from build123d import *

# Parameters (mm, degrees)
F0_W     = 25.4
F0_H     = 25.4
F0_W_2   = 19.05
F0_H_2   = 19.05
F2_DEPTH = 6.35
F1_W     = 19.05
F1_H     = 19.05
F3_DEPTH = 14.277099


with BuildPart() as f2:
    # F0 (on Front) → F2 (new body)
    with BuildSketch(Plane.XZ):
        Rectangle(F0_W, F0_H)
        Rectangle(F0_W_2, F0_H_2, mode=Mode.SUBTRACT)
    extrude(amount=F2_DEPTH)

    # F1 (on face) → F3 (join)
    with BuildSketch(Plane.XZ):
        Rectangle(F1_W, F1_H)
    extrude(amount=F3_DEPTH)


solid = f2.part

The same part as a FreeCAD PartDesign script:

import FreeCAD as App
import Part
import Sketcher
from FreeCAD import Vector
Q = App.Units.Quantity

doc = App.newDocument("Part")
body = doc.addObject("PartDesign::Body", "Body")

# Sketch on XZ plane
sketch1 = body.newObject("Sketcher::SketchObject", "Sketch")
sketch1.AttachmentSupport = (doc.getObject("XZ_Plane"), [""])
sketch1.MapMode = "FlatFace"
sketch1.addGeometry([
    Part.LineSegment(Vector(-13, 13, 0), Vector(-13, -13, 0)),  # 0
    Part.LineSegment(Vector(-13, -13, 0), Vector(13, -13, 0)),  # 1
    Part.LineSegment(Vector(13, -13, 0), Vector(13, 13, 0)),  # 2
    Part.LineSegment(Vector(13, 13, 0), Vector(-13, 13, 0)),  # 3
    Part.LineSegment(Vector(10, -10, 0), Vector(-10, -10, 0)),  # 4
    Part.LineSegment(Vector(-10, -10, 0), Vector(-10, 10, 0)),  # 5
    Part.LineSegment(Vector(-10, 10, 0), Vector(10, 10, 0)),  # 6
    Part.LineSegment(Vector(10, 10, 0), Vector(10, -10, 0)),  # 7
], False)
sketch1.addConstraint([
    Sketcher.Constraint("Coincident", 0, 2, 1, 1),
    Sketcher.Constraint("Coincident", 1, 2, 2, 1),
    Sketcher.Constraint("Coincident", 2, 2, 3, 1),
    Sketcher.Constraint("Coincident", 3, 2, 0, 1),
    Sketcher.Constraint("Coincident", 4, 2, 5, 1),
    Sketcher.Constraint("Coincident", 5, 2, 6, 1),
    Sketcher.Constraint("Coincident", 6, 2, 7, 1),
    Sketcher.Constraint("Coincident", 7, 2, 4, 1),
    Sketcher.Constraint("Vertical", 0),
    Sketcher.Constraint("Horizontal", 1),
    Sketcher.Constraint("Vertical", 2),
    Sketcher.Constraint("Horizontal", 3),
    Sketcher.Constraint("Horizontal", 4),
    Sketcher.Constraint("Vertical", 5),
    Sketcher.Constraint("Horizontal", 6),
    Sketcher.Constraint("Vertical", 7),
    Sketcher.Constraint("Symmetric", 0, 2, 2, 2, -1, 1),
    Sketcher.Constraint("Symmetric", 4, 2, 6, 2, -1, 1),
    Sketcher.Constraint("Equal", 3, 0),
    Sketcher.Constraint("Equal", 6, 5),
    Sketcher.Constraint("DistanceX", 1, 1, 1, 2, Q("1 in")),
    Sketcher.Constraint("DistanceX", 4, 2, 4, 1, Q("0.75 in")),
])
pad1 = body.newObject("PartDesign::Pad", "Pad")
pad1.Profile = sketch1
pad1.Length = Q("0.25 in")

# Sketch on XZ plane
sketch2 = body.newObject("Sketcher::SketchObject", "Sketch001")
sketch2.AttachmentSupport = (doc.getObject("XZ_Plane"), [""])
sketch2.MapMode = "FlatFace"
sketch2.addGeometry([
    Part.LineSegment(Vector(-10, 10, 0), Vector(-10, -10, 0)),
    Part.LineSegment(Vector(-10, -10, 0), Vector(10, -10, 0)),
    Part.LineSegment(Vector(10, -10, 0), Vector(10, 10, 0)),
    Part.LineSegment(Vector(10, 10, 0), Vector(-10, 10, 0)),
], False)
sketch2.addConstraint([
    Sketcher.Constraint("Coincident", 0, 2, 1, 1),
    Sketcher.Constraint("Coincident", 1, 2, 2, 1),
    Sketcher.Constraint("Coincident", 2, 2, 3, 1),
    Sketcher.Constraint("Coincident", 3, 2, 0, 1),
    Sketcher.Constraint("Vertical", 0),
    Sketcher.Constraint("Horizontal", 1),
    Sketcher.Constraint("Vertical", 2),
    Sketcher.Constraint("Horizontal", 3),
    Sketcher.Constraint("Symmetric", 0, 2, 2, 2, -1, 1),
    Sketcher.Constraint("Equal", 3, 0),
    Sketcher.Constraint("DistanceX", 1, 1, 1, 2, Q("0.75 in")),
])
pad2 = body.newObject("PartDesign::Pad", "Pad001")
pad2.Profile = sketch2
pad2.Length = 14.277099

doc.recompute()
